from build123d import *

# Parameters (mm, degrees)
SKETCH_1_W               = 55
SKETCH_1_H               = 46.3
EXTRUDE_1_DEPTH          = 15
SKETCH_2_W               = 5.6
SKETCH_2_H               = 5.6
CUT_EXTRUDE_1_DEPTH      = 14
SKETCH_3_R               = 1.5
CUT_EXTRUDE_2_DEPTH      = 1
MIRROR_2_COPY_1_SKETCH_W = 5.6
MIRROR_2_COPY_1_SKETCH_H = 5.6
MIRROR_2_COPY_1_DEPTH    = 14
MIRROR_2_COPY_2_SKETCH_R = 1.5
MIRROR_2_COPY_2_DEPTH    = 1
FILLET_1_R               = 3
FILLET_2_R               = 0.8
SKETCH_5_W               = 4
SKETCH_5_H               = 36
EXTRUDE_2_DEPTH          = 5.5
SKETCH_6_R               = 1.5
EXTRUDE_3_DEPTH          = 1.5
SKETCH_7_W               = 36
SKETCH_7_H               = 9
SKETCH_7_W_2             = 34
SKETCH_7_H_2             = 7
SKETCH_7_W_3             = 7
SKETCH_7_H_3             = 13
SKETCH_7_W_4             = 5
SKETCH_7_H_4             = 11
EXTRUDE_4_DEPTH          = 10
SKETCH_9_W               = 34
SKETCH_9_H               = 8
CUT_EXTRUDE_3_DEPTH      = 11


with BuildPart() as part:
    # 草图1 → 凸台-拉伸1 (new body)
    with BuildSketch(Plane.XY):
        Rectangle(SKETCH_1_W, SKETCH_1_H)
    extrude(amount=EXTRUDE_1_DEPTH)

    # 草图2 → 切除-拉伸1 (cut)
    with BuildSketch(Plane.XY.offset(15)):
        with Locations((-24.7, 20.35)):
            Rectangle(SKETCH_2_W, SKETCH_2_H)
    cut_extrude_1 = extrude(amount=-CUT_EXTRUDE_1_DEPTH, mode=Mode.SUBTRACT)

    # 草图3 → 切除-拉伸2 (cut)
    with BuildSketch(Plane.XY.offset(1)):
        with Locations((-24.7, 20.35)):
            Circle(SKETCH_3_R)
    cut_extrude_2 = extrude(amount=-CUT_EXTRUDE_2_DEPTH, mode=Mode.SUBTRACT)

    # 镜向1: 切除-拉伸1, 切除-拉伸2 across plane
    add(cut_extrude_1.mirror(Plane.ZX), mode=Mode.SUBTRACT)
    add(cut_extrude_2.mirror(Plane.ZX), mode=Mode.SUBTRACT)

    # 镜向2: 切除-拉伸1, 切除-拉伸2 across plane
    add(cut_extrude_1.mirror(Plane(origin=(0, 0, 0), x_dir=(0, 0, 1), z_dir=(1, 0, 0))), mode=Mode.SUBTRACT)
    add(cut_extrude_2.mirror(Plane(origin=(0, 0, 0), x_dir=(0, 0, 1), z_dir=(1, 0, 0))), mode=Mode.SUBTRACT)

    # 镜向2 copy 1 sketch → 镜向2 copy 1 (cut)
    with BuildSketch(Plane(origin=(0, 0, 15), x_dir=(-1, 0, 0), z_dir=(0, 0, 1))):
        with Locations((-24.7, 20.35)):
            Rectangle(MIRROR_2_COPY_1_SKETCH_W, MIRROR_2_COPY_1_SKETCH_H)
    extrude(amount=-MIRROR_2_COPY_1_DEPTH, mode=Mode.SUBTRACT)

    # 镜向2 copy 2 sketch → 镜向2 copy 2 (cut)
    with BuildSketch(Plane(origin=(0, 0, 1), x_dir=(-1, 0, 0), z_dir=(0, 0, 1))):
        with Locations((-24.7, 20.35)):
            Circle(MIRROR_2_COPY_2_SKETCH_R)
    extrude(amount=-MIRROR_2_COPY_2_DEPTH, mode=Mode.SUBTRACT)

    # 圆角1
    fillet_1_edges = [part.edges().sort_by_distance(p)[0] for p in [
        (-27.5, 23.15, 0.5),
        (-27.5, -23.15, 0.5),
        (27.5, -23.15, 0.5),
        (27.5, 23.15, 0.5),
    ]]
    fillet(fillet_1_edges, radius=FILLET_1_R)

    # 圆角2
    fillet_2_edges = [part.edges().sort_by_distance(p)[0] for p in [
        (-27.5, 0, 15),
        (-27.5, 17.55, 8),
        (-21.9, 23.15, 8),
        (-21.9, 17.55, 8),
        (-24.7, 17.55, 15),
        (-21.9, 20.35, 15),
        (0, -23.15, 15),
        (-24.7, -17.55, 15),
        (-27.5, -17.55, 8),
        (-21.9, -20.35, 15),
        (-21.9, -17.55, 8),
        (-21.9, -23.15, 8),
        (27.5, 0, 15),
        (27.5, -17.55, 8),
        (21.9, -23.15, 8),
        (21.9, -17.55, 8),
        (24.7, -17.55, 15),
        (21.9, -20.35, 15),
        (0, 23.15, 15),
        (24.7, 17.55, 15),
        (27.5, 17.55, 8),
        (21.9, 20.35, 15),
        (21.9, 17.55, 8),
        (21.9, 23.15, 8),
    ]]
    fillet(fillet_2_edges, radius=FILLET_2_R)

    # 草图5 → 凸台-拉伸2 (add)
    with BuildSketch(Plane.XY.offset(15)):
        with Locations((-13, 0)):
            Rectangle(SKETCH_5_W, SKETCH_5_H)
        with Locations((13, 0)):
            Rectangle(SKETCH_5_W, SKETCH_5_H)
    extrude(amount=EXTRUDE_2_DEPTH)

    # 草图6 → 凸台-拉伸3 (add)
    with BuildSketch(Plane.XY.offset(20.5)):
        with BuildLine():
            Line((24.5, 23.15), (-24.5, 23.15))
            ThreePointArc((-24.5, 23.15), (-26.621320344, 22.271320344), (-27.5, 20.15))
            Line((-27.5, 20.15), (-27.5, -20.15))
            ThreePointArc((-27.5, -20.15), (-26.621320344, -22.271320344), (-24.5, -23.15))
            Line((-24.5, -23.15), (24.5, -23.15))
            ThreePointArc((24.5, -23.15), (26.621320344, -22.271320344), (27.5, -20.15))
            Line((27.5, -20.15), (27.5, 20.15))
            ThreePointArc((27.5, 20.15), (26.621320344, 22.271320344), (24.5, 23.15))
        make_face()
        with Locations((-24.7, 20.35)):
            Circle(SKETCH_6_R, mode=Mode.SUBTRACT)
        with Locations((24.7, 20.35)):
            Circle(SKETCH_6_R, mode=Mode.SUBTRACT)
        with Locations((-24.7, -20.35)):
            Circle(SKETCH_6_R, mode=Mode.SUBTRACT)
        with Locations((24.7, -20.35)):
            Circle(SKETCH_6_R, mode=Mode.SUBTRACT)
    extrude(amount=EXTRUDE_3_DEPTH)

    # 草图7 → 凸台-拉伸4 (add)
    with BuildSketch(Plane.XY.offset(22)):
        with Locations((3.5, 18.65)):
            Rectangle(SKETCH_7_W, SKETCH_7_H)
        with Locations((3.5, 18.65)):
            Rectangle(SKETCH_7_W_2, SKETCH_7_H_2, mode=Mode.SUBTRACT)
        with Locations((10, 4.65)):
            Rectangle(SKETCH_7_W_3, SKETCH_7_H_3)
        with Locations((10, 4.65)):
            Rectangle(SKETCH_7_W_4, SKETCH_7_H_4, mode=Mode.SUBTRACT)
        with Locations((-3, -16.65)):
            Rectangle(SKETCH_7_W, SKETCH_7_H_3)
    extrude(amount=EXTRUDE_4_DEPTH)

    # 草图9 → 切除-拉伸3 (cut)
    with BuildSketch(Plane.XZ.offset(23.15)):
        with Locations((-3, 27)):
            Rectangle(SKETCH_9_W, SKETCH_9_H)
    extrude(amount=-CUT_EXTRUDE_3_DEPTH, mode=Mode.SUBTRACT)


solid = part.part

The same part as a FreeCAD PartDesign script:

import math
import FreeCAD as App
import Part
import Sketcher
from FreeCAD import Vector
Q = App.Units.Quantity


def edges_at(feature, points):
    """Names of the edges that pass closest to the given points."""
    edges = feature.Shape.Edges
    near = lambda p: min(range(len(edges)), key=lambda i: edges[i].distToShape(Part.Vertex(*p))[0])
    return sorted({f"Edge{near(p) + 1}" for p in points})

doc = App.newDocument("Part")
body = doc.addObject("PartDesign::Body", "Body")

sketch1 = doc.addObject("Sketcher::SketchObject", "Sketch")
body.addObject(sketch1)
sketch1.AttachmentSupport = (doc.XY_Plane, [""])
sketch1.MapMode = "FlatFace"
sketch1.addGeometry([
    Part.LineSegment(Vector(-27.5, 23.15, 0), Vector(-27.5, -23.15, 0)),
    Part.LineSegment(Vector(-27.5, -23.15, 0), Vector(27.5, -23.15, 0)),
    Part.LineSegment(Vector(27.5, -23.15, 0), Vector(27.5, 23.15, 0)),
    Part.LineSegment(Vector(27.5, 23.15, 0), Vector(-27.5, 23.15, 0)),
], False)
sketch1.addConstraint([
    Sketcher.Constraint("Coincident", 0, 2, 1, 1),
    Sketcher.Constraint("Coincident", 1, 2, 2, 1),
    Sketcher.Constraint("Coincident", 2, 2, 3, 1),
    Sketcher.Constraint("Coincident", 3, 2, 0, 1),
    Sketcher.Constraint("Vertical", 0),
    Sketcher.Constraint("Horizontal", 1),
    Sketcher.Constraint("Vertical", 2),
    Sketcher.Constraint("Horizontal", 3),
    Sketcher.Constraint("Symmetric", 0, 2, 2, 2, -1, 1),
    Sketcher.Constraint("DistanceX", 1, 1, 1, 2, Q("55 mm")),
    Sketcher.Constraint("DistanceY", 0, 2, 0, 1, Q("46.3 mm")),
])
pad1 = doc.addObject("PartDesign::Pad", "Pad")
body.addObject(pad1)
pad1.Profile = sketch1
pad1.Length = 15

sketch2 = doc.addObject("Sketcher::SketchObject", "Sketch001")
body.addObject(sketch2)
sketch2.AttachmentSupport = (doc.XY_Plane, [""])
sketch2.MapMode = "FlatFace"
sketch2.AttachmentOffset = App.Placement(Vector(0, 0, 15), App.Rotation())
sketch2.addGeometry([
    Part.LineSegment(Vector(-27.5, 23.15, 0), Vector(-27.5, 17.55, 0)),
    Part.LineSegment(Vector(-27.5, 17.55, 0), Vector(-21.9, 17.55, 0)),
    Part.LineSegment(Vector(-21.9, 17.55, 0), Vector(-21.9, 23.15, 0)),
    Part.LineSegment(Vector(-21.9, 23.15, 0), Vector(-27.5, 23.15, 0)),
], False)
sketch2.addConstraint([
    Sketcher.Constraint("Coincident", 0, 2, 1, 1),
    Sketcher.Constraint("Coincident", 1, 2, 2, 1),
    Sketcher.Constraint("Coincident", 2, 2, 3, 1),
    Sketcher.Constraint("Coincident", 3, 2, 0, 1),
    Sketcher.Constraint("Vertical", 0),
    Sketcher.Constraint("Horizontal", 1),
    Sketcher.Constraint("Vertical", 2),
    Sketcher.Constraint("Horizontal", 3),
    Sketcher.Constraint("Equal", 3, 0),
    Sketcher.Constraint("DistanceX", 1, 1, 1, 2, Q("5.6 mm")),
    Sketcher.Constraint("DistanceX", 0, 2, -1, 1, Q("27.5 mm")),
    Sketcher.Constraint("DistanceY", -1, 1, 0, 2, Q("17.55 mm")),
])
pocket1 = doc.addObject("PartDesign::Pocket", "Pocket")
body.addObject(pocket1)
pocket1.Profile = sketch2
pocket1.Length = 14

sketch3 = doc.addObject("Sketcher::SketchObject", "Sketch002")
body.addObject(sketch3)
sketch3.AttachmentSupport = (doc.XY_Plane, [""])
sketch3.MapMode = "FlatFace"
sketch3.AttachmentOffset = App.Placement(Vector(0, 0, 1), App.Rotation())
sketch3.addGeometry(Part.Circle(Vector(-24.7, 20.35, 0), Vector(0, 0, 1), 1.5), False)
sketch3.addConstraint([
    Sketcher.Constraint("Diameter", 0, Q("3 mm")),
    Sketcher.Constraint("DistanceX", 0, 3, -1, 1, Q("24.7 mm")),
    Sketcher.Constraint("DistanceY", -1, 1, 0, 3, Q("20.35 mm")),
])
pocket2 = doc.addObject("PartDesign::Pocket", "Pocket001")
body.addObject(pocket2)
pocket2.Profile = sketch3
pocket2.Length = 1
doc.recompute()

mirrored = doc.addObject("PartDesign::Mirrored", "Mirrored")
body.addObject(mirrored)
mirrored.Originals = [pocket1, pocket2]
mirrored.MirrorPlane = (doc.XZ_Plane, [""])
body.Tip = mirrored
doc.recompute()

mirrored2 = doc.addObject("PartDesign::Mirrored", "Mirrored001")
body.addObject(mirrored2)
mirrored2.Originals = [pocket1, pocket2]
mirrored2.MirrorPlane = (doc.YZ_Plane, [""])
body.Tip = mirrored2

sketch4 = doc.addObject("Sketcher::SketchObject", "Sketch003")
body.addObject(sketch4)
sketch4.AttachmentSupport = (doc.XY_Plane, [""])
sketch4.MapMode = "FlatFace"
sketch4.AttachmentOffset = App.Placement(Vector(0, 0, 15), App.Rotation())
sketch4.addGeometry([
    Part.LineSegment(Vector(27.5, -23.15, 0), Vector(27.5, -17.55, 0)),
    Part.LineSegment(Vector(27.5, -17.55, 0), Vector(21.9, -17.55, 0)),
    Part.LineSegment(Vector(21.9, -17.55, 0), Vector(21.9, -23.15, 0)),
    Part.LineSegment(Vector(21.9, -23.15, 0), Vector(27.5, -23.15, 0)),
], False)
sketch4.addConstraint([
    Sketcher.Constraint("Coincident", 0, 2, 1, 1),
    Sketcher.Constraint("Coincident", 1, 2, 2, 1),
    Sketcher.Constraint("Coincident", 2, 2, 3, 1),
    Sketcher.Constraint("Coincident", 3, 2, 0, 1),
    Sketcher.Constraint("Vertical", 0),
    Sketcher.Constraint("Horizontal", 1),
    Sketcher.Constraint("Vertical", 2),
    Sketcher.Constraint("Horizontal", 3),
    Sketcher.Constraint("Equal", 3, 0),
    Sketcher.Constraint("DistanceX", 1, 2, 1, 1, Q("5.6 mm")),
    Sketcher.Constraint("DistanceX", -1, 1, 0, 2, Q("27.5 mm")),
    Sketcher.Constraint("DistanceY", 0, 2, -1, 1, Q("17.55 mm")),
])
pocket3 = doc.addObject("PartDesign::Pocket", "Pocket002")
body.addObject(pocket3)
pocket3.Profile = sketch4
pocket3.Length = 14

sketch5 = doc.addObject("Sketcher::SketchObject", "Sketch004")
body.addObject(sketch5)
sketch5.AttachmentSupport = (doc.XY_Plane, [""])
sketch5.MapMode = "FlatFace"
sketch5.AttachmentOffset = App.Placement(Vector(0, 0, 1), App.Rotation())
sketch5.addGeometry(Part.Circle(Vector(24.7, -20.35, 0), Vector(0, 0, 1), 1.5), False)
sketch5.addConstraint([
    Sketcher.Constraint("Diameter", 0, Q("3 mm")),
    Sketcher.Constraint("DistanceX", -1, 1, 0, 3, Q("24.7 mm")),
    Sketcher.Constraint("DistanceY", 0, 3, -1, 1, Q("20.35 mm")),
])
pocket4 = doc.addObject("PartDesign::Pocket", "Pocket003")
body.addObject(pocket4)
pocket4.Profile = sketch5
pocket4.Length = 1
doc.recompute()

fillet = doc.addObject("PartDesign::Fillet", "Fillet")
body.addObject(fillet)
fillet.Base = (pocket4, edges_at(pocket4, [
    (-27.5, 23.15, 0.5),
    (-27.5, -23.15, 0.5),
    (27.5, -23.15, 0.5),
    (27.5, 23.15, 0.5),
]))
fillet.Radius = 3
doc.recompute()

fillet2 = doc.addObject("PartDesign::Fillet", "Fillet001")
body.addObject(fillet2)
fillet2.Base = (fillet, edges_at(fillet, [
    (-27.5, 0, 15),
    (-27.5, 17.55, 8),
    (-21.9, 23.15, 8),
    (-21.9, 17.55, 8),
    (-24.7, 17.55, 15),
    (-21.9, 20.35, 15),
    (0, -23.15, 15),
    (-24.7, -17.55, 15),
    (-27.5, -17.55, 8),
    (-21.9, -20.35, 15),
    (-21.9, -17.55, 8),
    (-21.9, -23.15, 8),
    (27.5, 0, 15),
    (27.5, -17.55, 8),
    (21.9, -23.15, 8),
    (21.9, -17.55, 8),
    (24.7, -17.55, 15),
    (21.9, -20.35, 15),
    (0, 23.15, 15),
    (24.7, 17.55, 15),
    (27.5, 17.55, 8),
    (21.9, 20.35, 15),
    (21.9, 17.55, 8),
    (21.9, 23.15, 8),
]))
fillet2.Radius = 0.8

sketch6 = doc.addObject("Sketcher::SketchObject", "Sketch005")
body.addObject(sketch6)
sketch6.AttachmentSupport = (doc.XY_Plane, [""])
sketch6.MapMode = "FlatFace"
sketch6.AttachmentOffset = App.Placement(Vector(0, 0, 15), App.Rotation())
sketch6.addGeometry([
    Part.LineSegment(Vector(-15, 18, 0), Vector(-15, -18, 0)),
    Part.LineSegment(Vector(-15, -18, 0), Vector(-11, -18, 0)),
    Part.LineSegment(Vector(-11, -18, 0), Vector(-11, 18, 0)),
    Part.LineSegment(Vector(-11, 18, 0), Vector(-15, 18, 0)),
    Part.LineSegment(Vector(11, 18, 0), Vector(11, -18, 0)),
    Part.LineSegment(Vector(11, -18, 0), Vector(15, -18, 0)),
    Part.LineSegment(Vector(15, -18, 0), Vector(15, 18, 0)),
    Part.LineSegment(Vector(15, 18, 0), Vector(11, 18, 0)),
], False)
sketch6.addConstraint([
    Sketcher.Constraint("Coincident", 0, 2, 1, 1),
    Sketcher.Constraint("Coincident", 1, 2, 2, 1),
    Sketcher.Constraint("Coincident", 2, 2, 3, 1),
    Sketcher.Constraint("Coincident", 3, 2, 0, 1),
    Sketcher.Constraint("Coincident", 4, 2, 5, 1),
    Sketcher.Constraint("Coincident", 5, 2, 6, 1),
    Sketcher.Constraint("Coincident", 6, 2, 7, 1),
    Sketcher.Constraint("Coincident", 7, 2, 4, 1),
    Sketcher.Constraint("Vertical", 0),
    Sketcher.Constraint("Horizontal", 1),
    Sketcher.Constraint("Vertical", 2),
    Sketcher.Constraint("Horizontal", 3),
    Sketcher.Constraint("Vertical", 4),
    Sketcher.Constraint("Horizontal", 5),
    Sketcher.Constraint("Vertical", 6),
    Sketcher.Constraint("Horizontal", 7),
    Sketcher.Constraint("Symmetric", 2, 2, 4, 2, -1, 1),
    Sketcher.Constraint("Symmetric", 0, 2, 6, 2, -1, 1),
    Sketcher.Constraint("Horizontal", 1, 2, 4, 2),
    Sketcher.Constraint("DistanceX", 1, 1, 1, 2, Q("4 mm")),
    Sketcher.Constraint("DistanceY", 0, 2, 0, 1, Q("36 mm")),
    Sketcher.Constraint("DistanceX", 0, 2, -1, 1, Q("15 mm")),
])
pad2 = doc.addObject("PartDesign::Pad", "Pad001")
body.addObject(pad2)
pad2.Profile = sketch6
pad2.Length = 5.5

sketch7 = doc.addObject("Sketcher::SketchObject", "Sketch006")
body.addObject(sketch7)
sketch7.AttachmentSupport = (doc.XY_Plane, [""])
sketch7.MapMode = "FlatFace"
sketch7.AttachmentOffset = App.Placement(Vector(0, 0, 20.5), App.Rotation())
sketch7.addGeometry([
    Part.LineSegment(Vector(24.5, 23.15, 0), Vector(-24.5, 23.15, 0)),
    Part.ArcOfCircle(Part.Circle(Vector(-24.5, 20.15, 0), Vector(0, 0, 1), 3), math.radians(90), math.radians(180)),
    Part.LineSegment(Vector(-27.5, 20.15, 0), Vector(-27.5, -20.15, 0)),
    Part.ArcOfCircle(Part.Circle(Vector(-24.5, -20.15, 0), Vector(0, 0, 1), 3), math.radians(180), math.radians(270)),
    Part.LineSegment(Vector(-24.5, -23.15, 0), Vector(24.5, -23.15, 0)),
    Part.ArcOfCircle(Part.Circle(Vector(24.5, -20.15, 0), Vector(0, 0, 1), 3), math.radians(-90), math.radians(0)),
    Part.LineSegment(Vector(27.5, -20.15, 0), Vector(27.5, 20.15, 0)),
    Part.ArcOfCircle(Part.Circle(Vector(24.5, 20.15, 0), Vector(0, 0, 1), 3), math.radians(0), math.radians(90)),
    Part.Circle(Vector(-24.7, -20.35, 0), Vector(0, 0, 1), 1.5),
    Part.Circle(Vector(24.7, -20.35, 0), Vector(0, 0, 1), 1.5),
    Part.Circle(Vector(-24.7, 20.35, 0), Vector(0, 0, 1), 1.5),
    Part.Circle(Vector(24.7, 20.35, 0), Vector(0, 0, 1), 1.5),
], False)
sketch7.addConstraint([
    Sketcher.Constraint("Tangent", 0, 2, 1, 1),
    Sketcher.Constraint("Tangent", 1, 2, 2, 1),
    Sketcher.Constraint("Tangent", 2, 2, 3, 1),
    Sketcher.Constraint("Tangent", 3, 2, 4, 1),
    Sketcher.Constraint("Tangent", 4, 2, 5, 1),
    Sketcher.Constraint("Tangent", 5, 2, 6, 1),
    Sketcher.Constraint("Tangent", 6, 2, 7, 1),
    Sketcher.Constraint("Tangent", 7, 2, 0, 1),
    Sketcher.Constraint("Horizontal", 0),
    Sketcher.Constraint("Vertical", 2),
    Sketcher.Constraint("Horizontal", 4),
    Sketcher.Constraint("Vertical", 6),
    Sketcher.Constraint("Equal", 1, 3),
    Sketcher.Constraint("Equal", 3, 5),
    Sketcher.Constraint("Equal", 5, 7),
    Sketcher.Constraint("Equal", 8, 9),
    Sketcher.Constraint("Equal", 9, 10),
    Sketcher.Constraint("Equal", 10, 11),
    Sketcher.Constraint("Symmetric", 1, 3, 5, 3, -1, 1),
    Sketcher.Constraint("Symmetric", 9, 3, 10, 3, -1, 1),
    Sketcher.Constraint("Symmetric", 8, 3, 11, 3, -1, 1),
    Sketcher.Constraint("Symmetric", 8, 3, 9, 3, -2),
    Sketcher.Constraint("Diameter", 8, Q("3 mm")),
    Sketcher.Constraint("Radius", 1, Q("3 mm")),
    Sketcher.Constraint("DistanceX", 0, 2, 0, 1, Q("49 mm")),
    Sketcher.Constraint("DistanceY", 2, 2, 2, 1, Q("40.3 mm")),
    Sketcher.Constraint("DistanceX", 8, 3, -1, 1, Q("24.7 mm")),
    Sketcher.Constraint("DistanceY", 8, 3, 3, 3, Q("0.2 mm")),
])
pad3 = doc.addObject("PartDesign::Pad", "Pad002")
body.addObject(pad3)
pad3.Profile = sketch7
pad3.Length = 1.5

sketch8 = doc.addObject("Sketcher::SketchObject", "Sketch007")
body.addObject(sketch8)
sketch8.AttachmentSupport = (doc.XY_Plane, [""])
sketch8.MapMode = "FlatFace"
sketch8.AttachmentOffset = App.Placement(Vector(0, 0, 22), App.Rotation())
sketch8.addGeometry([
    Part.LineSegment(Vector(-14.5, 23.15, 0), Vector(-14.5, 14.15, 0)),
    Part.LineSegment(Vector(-14.5, 14.15, 0), Vector(21.5, 14.15, 0)),
    Part.LineSegment(Vector(21.5, 14.15, 0), Vector(21.5, 23.15, 0)),
    Part.LineSegment(Vector(21.5, 23.15, 0), Vector(-14.5, 23.15, 0)),
    Part.LineSegment(Vector(20.5, 15.15, 0), Vector(-13.5, 15.15, 0)),
    Part.LineSegment(Vector(-13.5, 15.15, 0), Vector(-13.5, 22.15, 0)),
    Part.LineSegment(Vector(-13.5, 22.15, 0), Vector(20.5, 22.15, 0)),
    Part.LineSegment(Vector(20.5, 22.15, 0), Vector(20.5, 15.15, 0)),
    Part.LineSegment(Vector(6.5, 11.15, 0), Vector(6.5, -1.85, 0)),
    Part.LineSegment(Vector(6.5, -1.85, 0), Vector(13.5, -1.85, 0)),
    Part.LineSegment(Vector(13.5, -1.85, 0), Vector(13.5, 11.15, 0)),
    Part.LineSegment(Vector(13.5, 11.15, 0), Vector(6.5, 11.15, 0)),
    Part.LineSegment(Vector(12.5, -0.85, 0), Vector(7.5, -0.85, 0)),
    Part.LineSegment(Vector(7.5, -0.85, 0), Vector(7.5, 10.15, 0)),
    Part.LineSegment(Vector(7.5, 10.15, 0), Vector(12.5, 10.15, 0)),
    Part.LineSegment(Vector(12.5, 10.15, 0), Vector(12.5, -0.85, 0)),
    Part.LineSegment(Vector(-21, -10.15, 0), Vector(-21, -23.15, 0)),
    Part.LineSegment(Vector(-21, -23.15, 0), Vector(15, -23.15, 0)),
    Part.LineSegment(Vector(15, -23.15, 0), Vector(15, -10.15, 0)),
    Part.LineSegment(Vector(15, -10.15, 0), Vector(-21, -10.15, 0)),
], False)
sketch8.addConstraint([
    Sketcher.Constraint("Coincident", 0, 2, 1, 1),
    Sketcher.Constraint("Coincident", 1, 2, 2, 1),
    Sketcher.Constraint("Coincident", 2, 2, 3, 1),
    Sketcher.Constraint("Coincident", 3, 2, 0, 1),
    Sketcher.Constraint("Coincident", 4, 2, 5, 1),
    Sketcher.Constraint("Coincident", 5, 2, 6, 1),
    Sketcher.Constraint("Coincident", 6, 2, 7, 1),
    Sketcher.Constraint("Coincident", 7, 2, 4, 1),
    Sketcher.Constraint("Coincident", 8, 2, 9, 1),
    Sketcher.Constraint("Coincident", 9, 2, 10, 1),
    Sketcher.Constraint("Coincident", 10, 2, 11, 1),
    Sketcher.Constraint("Coincident", 11, 2, 8, 1),
    Sketcher.Constraint("Coincident", 12, 2, 13, 1),
    Sketcher.Constraint("Coincident", 13, 2, 14, 1),
    Sketcher.Constraint("Coincident", 14, 2, 15, 1),
    Sketcher.Constraint("Coincident", 15, 2, 12, 1),
    Sketcher.Constraint("Coincident", 16, 2, 17, 1),
    Sketcher.Constraint("Coincident", 17, 2, 18, 1),
    Sketcher.Constraint("Coincident", 18, 2, 19, 1),
    Sketcher.Constraint("Coincident", 19, 2, 16, 1),
    Sketcher.Constraint("Vertical", 0),
    Sketcher.Constraint("Horizontal", 1),
    Sketcher.Constraint("Vertical", 2),
    Sketcher.Constraint("Horizontal", 3),
    Sketcher.Constraint("Horizontal", 4),
    Sketcher.Constraint("Vertical", 5),
    Sketcher.Constraint("Horizontal", 6),
    Sketcher.Constraint("Vertical", 7),
    Sketcher.Constraint("Vertical", 8),
    Sketcher.Constraint("Horizontal", 9),
    Sketcher.Constraint("Vertical", 10),
    Sketcher.Constraint("Horizontal", 11),
    Sketcher.Constraint("Horizontal", 12),
    Sketcher.Constraint("Vertical", 13),
    Sketcher.Constraint("Horizontal", 14),
    Sketcher.Constraint("Vertical", 15),
    Sketcher.Constraint("Vertical", 16),
    Sketcher.Constraint("Horizontal", 17),
    Sketcher.Constraint("Vertical", 18),
    Sketcher.Constraint("Horizontal", 19),
    Sketcher.Constraint("Equal", 3, 17),
    Sketcher.Constraint("Equal", 11, 5),
    Sketcher.Constraint("Equal", 10, 16),
    Sketcher.Constraint("DistanceX", 1, 1, 1, 2, Q("36 mm")),
    Sketcher.Constraint("DistanceX", 4, 2, 4, 1, Q("34 mm")),
    Sketcher.Constraint("DistanceX", 9, 1, 9, 2, Q("7 mm")),
    Sketcher.Constraint("DistanceX", 12, 2, 12, 1, Q("5 mm")),
    Sketcher.Constraint("DistanceY", 0, 2, 0, 1, Q("9 mm")),
    Sketcher.Constraint("DistanceY", 8, 2, 8, 1, Q("13 mm")),
    Sketcher.Constraint("DistanceY", 13, 1, 13, 2, Q("11 mm")),
    Sketcher.Constraint("DistanceX", 16, 2, -1, 1, Q("21 mm")),
    Sketcher.Constraint("DistanceX", 0, 2, 4, 2, Q("1 mm")),
    Sketcher.Constraint("DistanceY", 0, 2, 4, 2, Q("1 mm")),
    Sketcher.Constraint("DistanceX", 8, 2, 1, 2, Q("15 mm")),
    Sketcher.Constraint("DistanceY", 8, 2, 1, 2, Q("16 mm")),
    Sketcher.Constraint("DistanceX", 8, 2, 12, 2, Q("1 mm")),
    Sketcher.Constraint("DistanceY", 8, 2, 12, 2, Q("1 mm")),
    Sketcher.Constraint("DistanceX", 0, 2, -1, 1, Q("14.5 mm")),
    Sketcher.Constraint("DistanceY", 16, 2, 8, 2, Q("21.3 mm")),
    Sketcher.Constraint("DistanceY", -1, 1, 0, 2, Q("14.15 mm")),
])
pad4 = doc.addObject("PartDesign::Pad", "Pad003")
body.addObject(pad4)
pad4.Profile = sketch8
pad4.Length = 10

sketch9 = doc.addObject("Sketcher::SketchObject", "Sketch008")
body.addObject(sketch9)
sketch9.AttachmentSupport = (doc.XZ_Plane, [""])
sketch9.MapMode = "FlatFace"
sketch9.AttachmentOffset = App.Placement(Vector(0, 0, 23.15), App.Rotation())
sketch9.addGeometry([
    Part.LineSegment(Vector(-20, 31, 0), Vector(-20, 23, 0)),
    Part.LineSegment(Vector(-20, 23, 0), Vector(14, 23, 0)),
    Part.LineSegment(Vector(14, 23, 0), Vector(14, 31, 0)),
    Part.LineSegment(Vector(14, 31, 0), Vector(-20, 31, 0)),
], False)
sketch9.addConstraint([
    Sketcher.Constraint("Coincident", 0, 2, 1, 1),
    Sketcher.Constraint("Coincident", 1, 2, 2, 1),
    Sketcher.Constraint("Coincident", 2, 2, 3, 1),
    Sketcher.Constraint("Coincident", 3, 2, 0, 1),
    Sketcher.Constraint("Vertical", 0),
    Sketcher.Constraint("Horizontal", 1),
    Sketcher.Constraint("Vertical", 2),
    Sketcher.Constraint("Horizontal", 3),
    Sketcher.Constraint("DistanceX", 1, 1, 1, 2, Q("34 mm")),
    Sketcher.Constraint("DistanceY", 0, 2, 0, 1, Q("8 mm")),
    Sketcher.Constraint("DistanceX", 0, 2, -1, 1, Q("20 mm")),
    Sketcher.Constraint("DistanceY", -1, 1, 0, 2, Q("23 mm")),
])
pocket5 = doc.addObject("PartDesign::Pocket", "Pocket004")
body.addObject(pocket5)
pocket5.Profile = sketch9
pocket5.Length = 11

doc.recompute()
